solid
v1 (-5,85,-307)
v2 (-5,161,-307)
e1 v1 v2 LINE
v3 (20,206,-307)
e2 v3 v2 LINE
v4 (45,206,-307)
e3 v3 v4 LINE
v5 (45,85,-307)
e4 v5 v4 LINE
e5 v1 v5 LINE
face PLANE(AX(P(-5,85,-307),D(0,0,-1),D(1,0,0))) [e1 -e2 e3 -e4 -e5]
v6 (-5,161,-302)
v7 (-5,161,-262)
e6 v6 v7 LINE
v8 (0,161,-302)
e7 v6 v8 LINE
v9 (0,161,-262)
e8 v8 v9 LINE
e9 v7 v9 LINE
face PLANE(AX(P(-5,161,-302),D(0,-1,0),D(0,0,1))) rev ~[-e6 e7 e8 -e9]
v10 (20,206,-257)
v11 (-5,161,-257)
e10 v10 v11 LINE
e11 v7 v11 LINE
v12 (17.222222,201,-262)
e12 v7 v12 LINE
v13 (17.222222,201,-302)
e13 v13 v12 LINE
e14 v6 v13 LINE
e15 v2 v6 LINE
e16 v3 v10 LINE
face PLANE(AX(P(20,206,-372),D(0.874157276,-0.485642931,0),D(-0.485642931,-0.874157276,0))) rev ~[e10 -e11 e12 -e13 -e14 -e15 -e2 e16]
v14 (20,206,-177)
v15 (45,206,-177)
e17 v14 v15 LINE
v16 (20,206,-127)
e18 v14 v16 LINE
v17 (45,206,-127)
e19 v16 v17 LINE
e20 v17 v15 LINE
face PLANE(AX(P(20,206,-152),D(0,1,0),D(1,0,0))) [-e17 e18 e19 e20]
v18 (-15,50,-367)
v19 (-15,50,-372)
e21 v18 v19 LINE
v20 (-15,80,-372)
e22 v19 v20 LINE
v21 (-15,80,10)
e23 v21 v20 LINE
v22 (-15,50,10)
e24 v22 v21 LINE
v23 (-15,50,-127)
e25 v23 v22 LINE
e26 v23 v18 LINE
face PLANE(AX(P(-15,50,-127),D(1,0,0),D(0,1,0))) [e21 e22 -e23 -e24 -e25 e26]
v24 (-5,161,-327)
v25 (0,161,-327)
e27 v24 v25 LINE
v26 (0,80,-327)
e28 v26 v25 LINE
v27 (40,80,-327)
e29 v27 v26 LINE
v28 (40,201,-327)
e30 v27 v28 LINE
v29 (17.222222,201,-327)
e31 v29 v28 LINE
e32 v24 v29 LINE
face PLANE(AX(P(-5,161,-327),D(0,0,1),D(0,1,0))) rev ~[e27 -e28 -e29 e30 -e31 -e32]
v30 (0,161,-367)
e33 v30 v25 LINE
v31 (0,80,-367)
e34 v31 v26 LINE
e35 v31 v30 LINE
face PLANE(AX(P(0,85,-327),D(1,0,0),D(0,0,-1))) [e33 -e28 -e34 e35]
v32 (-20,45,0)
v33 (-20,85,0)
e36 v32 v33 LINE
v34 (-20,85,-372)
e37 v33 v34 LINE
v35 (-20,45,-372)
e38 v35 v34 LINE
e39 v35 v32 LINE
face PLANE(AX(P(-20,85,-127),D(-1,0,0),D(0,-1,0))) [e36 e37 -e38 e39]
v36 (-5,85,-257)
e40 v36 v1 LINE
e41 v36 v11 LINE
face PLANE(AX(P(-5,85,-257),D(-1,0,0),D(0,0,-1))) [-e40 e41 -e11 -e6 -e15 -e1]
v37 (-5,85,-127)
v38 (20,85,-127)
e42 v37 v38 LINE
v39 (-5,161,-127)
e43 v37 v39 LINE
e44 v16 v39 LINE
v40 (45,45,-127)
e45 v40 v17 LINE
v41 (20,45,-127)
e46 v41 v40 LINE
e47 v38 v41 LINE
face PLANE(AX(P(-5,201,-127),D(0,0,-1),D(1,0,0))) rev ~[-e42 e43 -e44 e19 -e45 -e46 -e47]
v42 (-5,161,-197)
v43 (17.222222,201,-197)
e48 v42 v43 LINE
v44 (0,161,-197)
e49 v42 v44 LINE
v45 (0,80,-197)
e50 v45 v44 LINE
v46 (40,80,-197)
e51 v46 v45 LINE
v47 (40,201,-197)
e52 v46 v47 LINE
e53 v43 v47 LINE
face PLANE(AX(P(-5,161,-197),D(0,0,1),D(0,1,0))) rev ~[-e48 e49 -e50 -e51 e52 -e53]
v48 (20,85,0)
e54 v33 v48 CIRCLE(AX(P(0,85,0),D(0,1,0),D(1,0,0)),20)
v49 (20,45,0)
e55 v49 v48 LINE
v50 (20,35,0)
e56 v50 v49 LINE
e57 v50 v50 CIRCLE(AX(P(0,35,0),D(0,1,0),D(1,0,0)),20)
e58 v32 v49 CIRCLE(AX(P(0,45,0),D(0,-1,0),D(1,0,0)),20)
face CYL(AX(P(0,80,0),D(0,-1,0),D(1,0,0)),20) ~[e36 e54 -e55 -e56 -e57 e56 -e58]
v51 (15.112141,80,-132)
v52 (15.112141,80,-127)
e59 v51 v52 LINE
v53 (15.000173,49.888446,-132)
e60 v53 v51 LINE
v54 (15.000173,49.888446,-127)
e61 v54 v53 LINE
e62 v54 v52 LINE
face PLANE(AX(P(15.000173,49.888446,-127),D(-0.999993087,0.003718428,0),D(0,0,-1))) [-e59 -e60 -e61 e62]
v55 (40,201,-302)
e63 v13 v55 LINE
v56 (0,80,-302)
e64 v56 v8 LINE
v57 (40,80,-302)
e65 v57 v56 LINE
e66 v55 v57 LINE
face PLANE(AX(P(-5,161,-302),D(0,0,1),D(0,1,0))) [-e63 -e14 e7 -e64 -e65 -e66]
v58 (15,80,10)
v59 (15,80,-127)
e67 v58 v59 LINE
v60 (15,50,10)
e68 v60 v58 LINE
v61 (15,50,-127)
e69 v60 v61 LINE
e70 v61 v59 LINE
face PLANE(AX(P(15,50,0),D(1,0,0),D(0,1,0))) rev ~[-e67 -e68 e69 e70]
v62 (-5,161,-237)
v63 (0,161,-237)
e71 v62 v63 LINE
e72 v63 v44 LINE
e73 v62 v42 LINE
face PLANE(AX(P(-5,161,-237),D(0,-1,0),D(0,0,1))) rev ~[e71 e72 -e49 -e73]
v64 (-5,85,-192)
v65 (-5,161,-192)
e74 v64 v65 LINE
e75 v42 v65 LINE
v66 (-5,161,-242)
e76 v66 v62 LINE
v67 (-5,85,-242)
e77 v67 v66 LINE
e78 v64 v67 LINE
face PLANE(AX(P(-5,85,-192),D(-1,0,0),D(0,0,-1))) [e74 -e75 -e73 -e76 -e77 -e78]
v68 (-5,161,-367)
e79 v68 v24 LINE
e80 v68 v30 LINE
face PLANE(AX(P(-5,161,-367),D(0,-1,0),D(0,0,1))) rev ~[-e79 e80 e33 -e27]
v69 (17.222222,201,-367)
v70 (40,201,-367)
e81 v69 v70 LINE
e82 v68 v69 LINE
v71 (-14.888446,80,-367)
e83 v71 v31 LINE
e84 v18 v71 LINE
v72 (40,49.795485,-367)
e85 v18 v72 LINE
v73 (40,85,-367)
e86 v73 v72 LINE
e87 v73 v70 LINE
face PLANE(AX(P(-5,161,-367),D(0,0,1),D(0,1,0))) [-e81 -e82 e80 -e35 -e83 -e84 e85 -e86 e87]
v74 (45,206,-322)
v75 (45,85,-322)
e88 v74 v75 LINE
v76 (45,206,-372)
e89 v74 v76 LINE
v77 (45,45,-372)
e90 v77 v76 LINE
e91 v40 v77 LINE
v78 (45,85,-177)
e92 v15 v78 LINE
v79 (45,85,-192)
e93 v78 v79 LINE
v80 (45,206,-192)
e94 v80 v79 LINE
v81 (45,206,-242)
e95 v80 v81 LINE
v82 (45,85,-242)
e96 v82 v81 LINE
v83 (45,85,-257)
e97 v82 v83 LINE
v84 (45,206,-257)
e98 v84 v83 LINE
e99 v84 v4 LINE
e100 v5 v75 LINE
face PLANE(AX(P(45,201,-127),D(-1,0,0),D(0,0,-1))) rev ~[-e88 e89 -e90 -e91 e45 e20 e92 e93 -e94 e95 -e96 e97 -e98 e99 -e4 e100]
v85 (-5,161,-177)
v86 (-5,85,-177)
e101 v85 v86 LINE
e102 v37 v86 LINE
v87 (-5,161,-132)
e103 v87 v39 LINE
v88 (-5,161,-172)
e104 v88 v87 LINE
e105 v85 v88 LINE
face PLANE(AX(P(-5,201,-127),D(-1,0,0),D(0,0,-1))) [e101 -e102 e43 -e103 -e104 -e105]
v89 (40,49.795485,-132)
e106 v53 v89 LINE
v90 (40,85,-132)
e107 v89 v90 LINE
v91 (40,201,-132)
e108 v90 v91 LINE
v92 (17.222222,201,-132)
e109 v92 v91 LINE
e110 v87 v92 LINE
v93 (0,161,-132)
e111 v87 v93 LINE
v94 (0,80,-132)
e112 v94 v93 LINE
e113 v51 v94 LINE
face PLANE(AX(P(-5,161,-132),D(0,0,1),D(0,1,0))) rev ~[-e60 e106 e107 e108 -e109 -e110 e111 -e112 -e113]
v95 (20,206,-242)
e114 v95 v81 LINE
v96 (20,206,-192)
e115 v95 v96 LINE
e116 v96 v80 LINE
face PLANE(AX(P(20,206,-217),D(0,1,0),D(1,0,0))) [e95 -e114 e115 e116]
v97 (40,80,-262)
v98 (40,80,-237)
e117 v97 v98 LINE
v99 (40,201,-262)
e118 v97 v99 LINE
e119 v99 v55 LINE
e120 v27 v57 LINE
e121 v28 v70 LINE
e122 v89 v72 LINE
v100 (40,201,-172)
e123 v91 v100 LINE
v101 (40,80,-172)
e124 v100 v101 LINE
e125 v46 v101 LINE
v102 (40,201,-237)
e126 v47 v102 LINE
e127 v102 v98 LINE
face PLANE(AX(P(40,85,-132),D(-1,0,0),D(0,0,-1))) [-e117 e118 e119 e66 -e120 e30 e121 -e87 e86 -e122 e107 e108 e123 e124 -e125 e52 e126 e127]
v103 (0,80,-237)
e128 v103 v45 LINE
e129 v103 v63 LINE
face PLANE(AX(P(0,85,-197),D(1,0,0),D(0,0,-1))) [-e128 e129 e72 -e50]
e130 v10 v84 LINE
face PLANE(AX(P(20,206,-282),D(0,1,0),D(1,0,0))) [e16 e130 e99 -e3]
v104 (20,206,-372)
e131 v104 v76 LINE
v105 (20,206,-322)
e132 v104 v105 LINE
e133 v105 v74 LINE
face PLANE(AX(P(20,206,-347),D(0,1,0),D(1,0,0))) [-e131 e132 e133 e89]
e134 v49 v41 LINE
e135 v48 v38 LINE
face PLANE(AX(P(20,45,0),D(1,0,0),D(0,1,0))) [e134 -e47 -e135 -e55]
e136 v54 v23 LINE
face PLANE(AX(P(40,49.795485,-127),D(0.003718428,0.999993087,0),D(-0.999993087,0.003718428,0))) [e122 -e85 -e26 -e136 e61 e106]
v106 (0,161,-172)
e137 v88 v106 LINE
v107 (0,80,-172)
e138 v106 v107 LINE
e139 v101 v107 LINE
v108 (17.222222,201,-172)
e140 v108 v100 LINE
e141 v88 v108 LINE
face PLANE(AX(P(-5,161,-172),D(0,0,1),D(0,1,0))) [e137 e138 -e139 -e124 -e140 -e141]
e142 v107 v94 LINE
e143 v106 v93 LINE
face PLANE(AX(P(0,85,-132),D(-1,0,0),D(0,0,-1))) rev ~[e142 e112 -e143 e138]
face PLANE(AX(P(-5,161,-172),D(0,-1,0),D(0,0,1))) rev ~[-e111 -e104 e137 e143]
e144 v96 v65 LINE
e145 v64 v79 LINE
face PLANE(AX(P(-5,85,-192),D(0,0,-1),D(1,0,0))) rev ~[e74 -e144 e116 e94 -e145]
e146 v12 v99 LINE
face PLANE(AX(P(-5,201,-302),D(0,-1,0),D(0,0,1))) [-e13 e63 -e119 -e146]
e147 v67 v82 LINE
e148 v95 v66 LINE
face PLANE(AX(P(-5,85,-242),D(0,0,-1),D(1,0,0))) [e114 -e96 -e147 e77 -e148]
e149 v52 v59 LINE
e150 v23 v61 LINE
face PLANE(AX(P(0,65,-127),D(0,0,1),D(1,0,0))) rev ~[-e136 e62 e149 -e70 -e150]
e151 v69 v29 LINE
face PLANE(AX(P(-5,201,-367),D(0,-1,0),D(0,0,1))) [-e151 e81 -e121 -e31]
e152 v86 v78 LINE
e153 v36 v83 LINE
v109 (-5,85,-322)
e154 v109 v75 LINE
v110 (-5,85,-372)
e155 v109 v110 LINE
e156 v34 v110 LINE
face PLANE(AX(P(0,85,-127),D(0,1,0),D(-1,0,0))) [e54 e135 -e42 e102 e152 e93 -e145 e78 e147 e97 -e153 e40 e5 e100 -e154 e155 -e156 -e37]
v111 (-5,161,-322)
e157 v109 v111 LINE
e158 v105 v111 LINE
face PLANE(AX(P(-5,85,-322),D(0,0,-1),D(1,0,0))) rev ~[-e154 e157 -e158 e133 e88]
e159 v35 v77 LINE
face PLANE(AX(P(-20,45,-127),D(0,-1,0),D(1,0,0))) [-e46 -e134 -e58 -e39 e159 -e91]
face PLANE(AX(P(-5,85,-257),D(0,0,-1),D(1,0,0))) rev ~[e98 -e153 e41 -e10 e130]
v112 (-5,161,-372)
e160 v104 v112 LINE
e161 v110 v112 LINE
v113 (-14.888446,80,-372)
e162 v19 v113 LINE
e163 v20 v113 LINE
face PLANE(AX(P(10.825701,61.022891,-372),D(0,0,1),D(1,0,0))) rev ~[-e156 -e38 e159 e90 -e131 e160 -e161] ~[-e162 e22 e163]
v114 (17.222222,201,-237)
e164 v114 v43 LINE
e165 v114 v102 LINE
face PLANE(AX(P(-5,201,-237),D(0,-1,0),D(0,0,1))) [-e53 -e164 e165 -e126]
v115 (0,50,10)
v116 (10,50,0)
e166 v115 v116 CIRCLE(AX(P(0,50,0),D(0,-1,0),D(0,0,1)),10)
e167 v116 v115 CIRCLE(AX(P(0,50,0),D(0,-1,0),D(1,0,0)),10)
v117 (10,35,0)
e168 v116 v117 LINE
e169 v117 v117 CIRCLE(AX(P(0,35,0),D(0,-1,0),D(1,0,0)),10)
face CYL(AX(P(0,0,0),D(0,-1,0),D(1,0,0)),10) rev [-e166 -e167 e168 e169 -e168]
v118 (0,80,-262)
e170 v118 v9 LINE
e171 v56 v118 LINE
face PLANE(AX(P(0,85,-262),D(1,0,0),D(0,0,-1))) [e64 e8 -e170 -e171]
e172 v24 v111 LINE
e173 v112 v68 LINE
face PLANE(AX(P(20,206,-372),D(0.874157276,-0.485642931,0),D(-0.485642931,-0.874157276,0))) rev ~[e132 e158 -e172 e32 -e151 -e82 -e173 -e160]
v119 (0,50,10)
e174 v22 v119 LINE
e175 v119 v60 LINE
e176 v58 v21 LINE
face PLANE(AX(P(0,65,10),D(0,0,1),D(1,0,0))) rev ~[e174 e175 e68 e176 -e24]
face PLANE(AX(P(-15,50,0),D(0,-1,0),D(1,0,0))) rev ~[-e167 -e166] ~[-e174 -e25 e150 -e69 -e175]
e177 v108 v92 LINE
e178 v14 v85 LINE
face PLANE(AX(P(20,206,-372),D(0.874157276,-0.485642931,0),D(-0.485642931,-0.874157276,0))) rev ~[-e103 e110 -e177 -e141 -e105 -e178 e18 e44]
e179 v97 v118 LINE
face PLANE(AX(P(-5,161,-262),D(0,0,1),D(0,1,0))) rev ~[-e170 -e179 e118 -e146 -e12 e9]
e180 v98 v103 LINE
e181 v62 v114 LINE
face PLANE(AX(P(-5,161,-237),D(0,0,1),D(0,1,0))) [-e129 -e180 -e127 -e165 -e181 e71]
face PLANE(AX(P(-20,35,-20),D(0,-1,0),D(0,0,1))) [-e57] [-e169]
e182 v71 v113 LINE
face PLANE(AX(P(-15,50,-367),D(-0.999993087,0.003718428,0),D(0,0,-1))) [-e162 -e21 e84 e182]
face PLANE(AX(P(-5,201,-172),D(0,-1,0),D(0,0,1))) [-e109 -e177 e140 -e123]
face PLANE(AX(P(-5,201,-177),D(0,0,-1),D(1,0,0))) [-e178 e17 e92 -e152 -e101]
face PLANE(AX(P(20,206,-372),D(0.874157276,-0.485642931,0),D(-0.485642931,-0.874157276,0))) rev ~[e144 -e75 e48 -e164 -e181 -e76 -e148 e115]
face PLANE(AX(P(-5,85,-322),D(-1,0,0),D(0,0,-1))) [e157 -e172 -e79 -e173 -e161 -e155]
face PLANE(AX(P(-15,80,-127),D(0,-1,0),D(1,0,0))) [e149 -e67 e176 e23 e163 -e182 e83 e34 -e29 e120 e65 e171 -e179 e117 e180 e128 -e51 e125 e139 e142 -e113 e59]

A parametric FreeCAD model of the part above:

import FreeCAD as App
import Part
import Sketcher

V = App.Vector
Q = App.Units.Quantity

doc = App.newDocument("Part")
body = doc.addObject("PartDesign::Body", "Body")

# Sketch on XZ plane
sketch1 = body.newObject("Sketcher::SketchObject", "Sketch")
sketch1.AttachmentSupport = (doc.getObject("XZ_Plane"), [""])
sketch1.MapMode = "FlatFace"
sketch1.addGeometry([
    Part.Circle(V(0, 0, 0), V(0, 0, 1), 20),
    Part.Circle(V(0, 0, 0), V(0, 0, 1), 10),
], False)
sketch1.addConstraint([
    Sketcher.Constraint("Coincident", 0, 3, -1, 1),
    Sketcher.Constraint("Coincident", 1, 3, -1, 1),
    Sketcher.Constraint("Diameter", 0, Q("40 mm")),
    Sketcher.Constraint("Diameter", 1, Q("20 mm")),
])
pad1 = body.newObject("PartDesign::Pad", "Pad")
pad1.Profile = sketch1
pad1.Length = 80
pad1.Reversed = True

# Sketch on XZ plane
sketch2 = body.newObject("Sketcher::SketchObject", "Sketch001")
sketch2.AttachmentSupport = (doc.getObject("XZ_Plane"), [""])
sketch2.MapMode = "FlatFace"
sketch2.AttachmentOffset = App.Placement(V(0, 0, -80), App.Rotation())
sketch2.addGeometry(Part.Circle(V(0, 0, 0), V(0, 0, 1), 20), False)
sketch2.addConstraint([
    Sketcher.Constraint("Coincident", 0, 3, -1, 1),
    Sketcher.Constraint("Diameter", 0, Q("40 mm")),
])
pad2 = body.newObject("PartDesign::Pad", "Pad001")
pad2.Profile = sketch2
pad2.Length = 5
pad2.Reversed = True

# Sketch on XY plane
sketch3 = body.newObject("Sketcher::SketchObject", "Sketch002")
sketch3.AttachmentSupport = (doc.getObject("XY_Plane"), [""])
sketch3.MapMode = "FlatFace"
sketch3.addGeometry([
    Part.LineSegment(V(-15, 80, 0), V(-15, 50, 0)),
    Part.LineSegment(V(-15, 50, 0), V(15, 50, 0)),
    Part.LineSegment(V(15, 50, 0), V(15, 80, 0)),
    Part.LineSegment(V(15, 80, 0), V(-15, 80, 0)),
], False)
sketch3.addConstraint([
    Sketcher.Constraint("Coincident", 0, 2, 1, 1),
    Sketcher.Constraint("Coincident", 1, 2, 2, 1),
    Sketcher.Constraint("Coincident", 2, 2, 3, 1),
    Sketcher.Constraint("Coincident", 3, 2, 0, 1),
    Sketcher.Constraint("Vertical", 0),
    Sketcher.Constraint("Horizontal", 1),
    Sketcher.Constraint("Vertical", 2),
    Sketcher.Constraint("Horizontal", 3),
    Sketcher.Constraint("Equal", 3, 0),
    Sketcher.Constraint("DistanceX", 1, 1, 1, 2, Q("30 mm")),
    Sketcher.Constraint("DistanceX", 0, 2, -1, 1, Q("15 mm")),
    Sketcher.Constraint("DistanceY", -1, 1, 0, 2, Q("50 mm")),
])
pocket1 = body.newObject("PartDesign::Pocket", "Pocket")
pocket1.Profile = sketch3
pocket1.Length = 50

# Sketch on XY plane
sketch4 = body.newObject("Sketcher::SketchObject", "Sketch003")
sketch4.AttachmentSupport = (doc.getObject("XY_Plane"), [""])
sketch4.MapMode = "FlatFace"
sketch4.addGeometry([
    Part.LineSegment(V(-20, 85, 0), V(-20, 45, 0)),  # 0
    Part.LineSegment(V(-20, 45, 0), V(20, 45, 0)),  # 1
    Part.LineSegment(V(20, 45, 0), V(20, 85, 0)),  # 2
    Part.LineSegment(V(20, 85, 0), V(-20, 85, 0)),  # 3
    Part.LineSegment(V(15, 50, 0), V(-15, 50, 0)),  # 4
    Part.LineSegment(V(-15, 50, 0), V(-15, 80, 0)),  # 5
    Part.LineSegment(V(-15, 80, 0), V(15, 80, 0)),  # 6
    Part.LineSegment(V(15, 80, 0), V(15, 50, 0)),  # 7
], False)
sketch4.addConstraint([
    Sketcher.Constraint("Coincident", 0, 2, 1, 1),
    Sketcher.Constraint("Coincident", 1, 2, 2, 1),
    Sketcher.Constraint("Coincident", 2, 2, 3, 1),
    Sketcher.Constraint("Coincident", 3, 2, 0, 1),
    Sketcher.Constraint("Coincident", 4, 2, 5, 1),
    Sketcher.Constraint("Coincident", 5, 2, 6, 1),
    Sketcher.Constraint("Coincident", 6, 2, 7, 1),
    Sketcher.Constraint("Coincident", 7, 2, 4, 1),
    Sketcher.Constraint("Vertical", 0),
    Sketcher.Constraint("Horizontal", 1),
    Sketcher.Constraint("Vertical", 2),
    Sketcher.Constraint("Horizontal", 3),
    Sketcher.Constraint("Horizontal", 4),
    Sketcher.Constraint("Vertical", 5),
    Sketcher.Constraint("Horizontal", 6),
    Sketcher.Constraint("Vertical", 7),
    Sketcher.Constraint("Equal", 3, 0),
    Sketcher.Constraint("Equal", 6, 5),
    Sketcher.Constraint("DistanceX", 1, 1, 1, 2, Q("40 mm")),
    Sketcher.Constraint("DistanceX", 4, 2, 4, 1, Q("30 mm")),
    Sketcher.Constraint("DistanceX", 0, 2, -1, 1, Q("20 mm")),
    Sketcher.Constraint("DistanceY", -1, 1, 0, 2, Q("45 mm")),
    Sketcher.Constraint("DistanceX", 4, 2, -1, 1, Q("15 mm")),
    Sketcher.Constraint("DistanceY", -1, 1, 4, 2, Q("50 mm")),
])
pad3 = body.newObject("PartDesign::Pad", "Pad002")
pad3.Profile = sketch4
pad3.Length = 127
pad3.Reversed = True

# Sketch on XY plane
sketch5 = body.newObject("Sketcher::SketchObject", "Sketch004")
sketch5.AttachmentSupport = (doc.getObject("XY_Plane"), [""])
sketch5.MapMode = "FlatFace"
sketch5.addGeometry([
    Part.LineSegment(V(-15, 80, 0), V(-15, 50, 0)),
    Part.LineSegment(V(-15, 50, 0), V(15, 50, 0)),
    Part.LineSegment(V(15, 50, 0), V(15, 80, 0)),
    Part.LineSegment(V(15, 80, 0), V(-15, 80, 0)),
], False)
sketch5.addConstraint([
    Sketcher.Constraint("Coincident", 0, 2, 1, 1),
    Sketcher.Constraint("Coincident", 1, 2, 2, 1),
    Sketcher.Constraint("Coincident", 2, 2, 3, 1),
    Sketcher.Constraint("Coincident", 3, 2, 0, 1),
    Sketcher.Constraint("Vertical", 0),
    Sketcher.Constraint("Horizontal", 1),
    Sketcher.Constraint("Vertical", 2),
    Sketcher.Constraint("Horizontal", 3),
    Sketcher.Constraint("Equal", 3, 0),
    Sketcher.Constraint("DistanceX", 1, 1, 1, 2, Q("30 mm")),
    Sketcher.Constraint("DistanceX", 0, 2, -1, 1, Q("15 mm")),
    Sketcher.Constraint("DistanceY", -1, 1, 0, 2, Q("50 mm")),
])
pocket2 = body.newObject("PartDesign::Pocket", "Pocket001")
pocket2.Profile = sketch5
pocket2.Length = 10
pocket2.Reversed = True

# Sketch on XZ plane
sketch6 = body.newObject("Sketcher::SketchObject", "Sketch005")
sketch6.AttachmentSupport = (doc.getObject("XZ_Plane"), [""])
sketch6.MapMode = "FlatFace"
sketch6.addGeometry(Part.Circle(V(0, 0, 0), V(0, 0, 1), 10), False)
sketch6.addConstraint([
    Sketcher.Constraint("Coincident", 0, 3, -1, 1),
    Sketcher.Constraint("Diameter", 0, Q("20 mm")),
])
pocket3 = body.newObject("PartDesign::Pocket", "Pocket002")
pocket3.Profile = sketch6
pocket3.Length = 50

# Sketch on XY plane
sketch7 = body.newObject("Sketcher::SketchObject", "Sketch006")
sketch7.AttachmentSupport = (doc.getObject("XY_Plane"), [""])
sketch7.MapMode = "FlatFace"
sketch7.AttachmentOffset = App.Placement(V(0, 0, -127), App.Rotation())
sketch7.addGeometry([
    Part.LineSegment(V(0, 85, 0), V(0, 80, 0)),  # 0
    Part.LineSegment(V(0, 80, 0), V(-15, 80, 0)),  # 1
    Part.LineSegment(V(-15, 80, 0), V(-15, 50, 0)),  # 2
    Part.LineSegment(V(-15, 50, 0), V(40, 50, 0)),  # 3
    Part.LineSegment(V(40, 50, 0), V(40, 85, 0)),  # 4
    Part.LineSegment(V(40, 85, 0), V(45, 85, 0)),  # 5
    Part.LineSegment(V(45, 85, 0), V(45, 45, 0)),  # 6
    Part.LineSegment(V(45, 45, 0), V(-20, 45, 0)),  # 7
    Part.LineSegment(V(-20, 45, 0), V(-20, 85, 0)),  # 8
    Part.LineSegment(V(-20, 85, 0), V(0, 85, 0)),  # 9
], False)
sketch7.addConstraint([
    Sketcher.Constraint("Coincident", 0, 2, 1, 1),
    Sketcher.Constraint("Coincident", 1, 2, 2, 1),
    Sketcher.Constraint("Coincident", 2, 2, 3, 1),
    Sketcher.Constraint("Coincident", 3, 2, 4, 1),
    Sketcher.Constraint("Coincident", 4, 2, 5, 1),
    Sketcher.Constraint("Coincident", 5, 2, 6, 1),
    Sketcher.Constraint("Coincident", 6, 2, 7, 1),
    Sketcher.Constraint("Coincident", 7, 2, 8, 1),
    Sketcher.Constraint("Coincident", 8, 2, 9, 1),
    Sketcher.Constraint("Coincident", 9, 2, 0, 1),
    Sketcher.Constraint("Vertical", 0),
    Sketcher.Constraint("Horizontal", 1),
    Sketcher.Constraint("Vertical", 2),
    Sketcher.Constraint("Vertical", 4),
    Sketcher.Constraint("Horizontal", 5),
    Sketcher.Constraint("Vertical", 6),
    Sketcher.Constraint("Horizontal", 7),
    Sketcher.Constraint("Vertical", 8),
    Sketcher.Constraint("Horizontal", 9),
    Sketcher.Constraint("PointOnObject", 0, 2, -2),
    Sketcher.Constraint("Horizontal", 5, 2, 8, 2),
    Sketcher.Constraint("Equal", 5, 0),
    Sketcher.Constraint("DistanceX", 1, 2, 1, 1, Q("15 mm")),
    Sketcher.Constraint("DistanceX", 5, 1, 5, 2, Q("5 mm")),
    Sketcher.Constraint("DistanceX", 7, 2, 7, 1, Q("65 mm")),
    Sketcher.Constraint("DistanceX", 9, 1, 9, 2, Q("20 mm")),
    Sketcher.Constraint("DistanceY", 2, 2, 2, 1, Q("30 mm")),
    Sketcher.Constraint("DistanceY", 6, 2, 6, 1, Q("40 mm")),
    Sketcher.Constraint("DistanceY", -1, 1, 0, 2, Q("80 mm")),
    Sketcher.Constraint("DistanceY", 4, 1, 4, 2, Q("35.204515 mm")),
])
pad4 = body.newObject("PartDesign::Pad", "Pad003")
pad4.Profile = sketch7
pad4.Length = 245
pad4.Reversed = True

# Sketch on an angled plane
sketch8 = body.newObject("Sketcher::SketchObject", "Sketch007")
sketch8.Placement = App.Placement(V(0.185713, 49.943533, 0), App.Rotation(V(0.999993087, -0.003718428, 0), V(0, 0, -1.000000001), V(0.003718428, 0.999993087, 0), "ZXY"))
sketch8.addGeometry([
    Part.LineSegment(V(15, 132, 0), V(15, 127, 0)),  # 0
    Part.LineSegment(V(15, 127, 0), V(40, 127, 0)),  # 1
    Part.LineSegment(V(40, 127, 0), V(40, 132, 0)),  # 2
    Part.LineSegment(V(40, 132, 0), V(15, 132, 0)),  # 3
    Part.LineSegment(V(-15, 372, 0), V(-15, 367, 0)),  # 4
    Part.LineSegment(V(-15, 367, 0), V(40, 367, 0)),  # 5
    Part.LineSegment(V(40, 367, 0), V(40, 372, 0)),  # 6
    Part.LineSegment(V(40, 372, 0), V(-15, 372, 0)),  # 7
], False)
sketch8.addConstraint([
    Sketcher.Constraint("Coincident", 0, 2, 1, 1),
    Sketcher.Constraint("Coincident", 1, 2, 2, 1),
    Sketcher.Constraint("Coincident", 2, 2, 3, 1),
    Sketcher.Constraint("Coincident", 3, 2, 0, 1),
    Sketcher.Constraint("Coincident", 4, 2, 5, 1),
    Sketcher.Constraint("Coincident", 5, 2, 6, 1),
    Sketcher.Constraint("Coincident", 6, 2, 7, 1),
    Sketcher.Constraint("Coincident", 7, 2, 4, 1),
    Sketcher.Constraint("Vertical", 0),
    Sketcher.Constraint("Horizontal", 1),
    Sketcher.Constraint("Vertical", 2),
    Sketcher.Constraint("Horizontal", 3),
    Sketcher.Constraint("Vertical", 4),
    Sketcher.Constraint("Horizontal", 5),
    Sketcher.Constraint("Vertical", 6),
    Sketcher.Constraint("Horizontal", 7),
    Sketcher.Constraint("Vertical", 2, 2, 5, 2),
    Sketcher.Constraint("Equal", 2, 4),
    Sketcher.Constraint("DistanceX", 1, 1, 1, 2, Q("25 mm")),
    Sketcher.Constraint("DistanceY", 0, 2, 0, 1, Q("5 mm")),
    Sketcher.Constraint("DistanceY", -1, 1, 0, 2, Q("127 mm")),
    Sketcher.Constraint("DistanceY", -1, 1, 4, 2, Q("367.000001 mm")),
    Sketcher.Constraint("DistanceX", 5, 1, 5, 2, Q("55.00038 mm")),
    Sketcher.Constraint("DistanceX", -1, 1, 0, 2, Q("14.814563 mm")),
])
pad5 = body.newObject("PartDesign::Pad", "Pad004")
pad5.Profile = sketch8
pad5.Length = 35

# Sketch on XY plane
sketch9 = body.newObject("Sketcher::SketchObject", "Sketch008")
sketch9.AttachmentSupport = (doc.getObject("XY_Plane"), [""])
sketch9.MapMode = "FlatFace"
sketch9.AttachmentOffset = App.Placement(V(0, 0, -372), App.Rotation())
sketch9.addGeometry([
    Part.LineSegment(V(45, 85, 0), V(45, 80, 0)),
    Part.LineSegment(V(45, 80, 0), V(-20, 80, 0)),
    Part.LineSegment(V(-20, 80, 0), V(-20, 85, 0)),
    Part.LineSegment(V(-20, 85, 0), V(45, 85, 0)),
], False)
sketch9.addConstraint([
    Sketcher.Constraint("Coincident", 0, 2, 1, 1),
    Sketcher.Constraint("Coincident", 1, 2, 2, 1),
    Sketcher.Constraint("Coincident", 2, 2, 3, 1),
    Sketcher.Constraint("Coincident", 3, 2, 0, 1),
    Sketcher.Constraint("Vertical", 0),
    Sketcher.Constraint("Horizontal", 1),
    Sketcher.Constraint("Vertical", 2),
    Sketcher.Constraint("Horizontal", 3),
    Sketcher.Constraint("DistanceX", 1, 2, 1, 1, Q("65 mm")),
    Sketcher.Constraint("DistanceY", 0, 2, 0, 1, Q("5 mm")),
    Sketcher.Constraint("DistanceX", -1, 1, 0, 2, Q("45 mm")),
    Sketcher.Constraint("DistanceY", -1, 1, 0, 2, Q("80 mm")),
])
pad6 = body.newObject("PartDesign::Pad", "Pad005")
pad6.Profile = sketch9
pad6.Length = 245

# Sketch on XZ plane
sketch10 = body.newObject("Sketcher::SketchObject", "Sketch009")
sketch10.AttachmentSupport = (doc.getObject("XZ_Plane"), [""])
sketch10.MapMode = "FlatFace"
sketch10.AttachmentOffset = App.Placement(V(0, 0, -85), App.Rotation())
sketch10.addGeometry([
    Part.LineSegment(V(0, -172, 0), V(0, -132, 0)),  # 0
    Part.LineSegment(V(0, -132, 0), V(40, -132, 0)),  # 1
    Part.LineSegment(V(40, -132, 0), V(40, -172, 0)),  # 2
    Part.LineSegment(V(40, -172, 0), V(0, -172, 0)),  # 3
    Part.LineSegment(V(0, -237, 0), V(0, -197, 0)),  # 4
    Part.LineSegment(V(0, -197, 0), V(40, -197, 0)),  # 5
    Part.LineSegment(V(40, -197, 0), V(40, -237, 0)),  # 6
    Part.LineSegment(V(40, -237, 0), V(0, -237, 0)),  # 7
    Part.LineSegment(V(0, -302, 0), V(0, -262, 0)),  # 8
    Part.LineSegment(V(0, -262, 0), V(40, -262, 0)),  # 9
    Part.LineSegment(V(40, -262, 0), V(40, -302, 0)),  # 10
    Part.LineSegment(V(40, -302, 0), V(0, -302, 0)),  # 11
    Part.LineSegment(V(0, -367, 0), V(0, -327, 0)),  # 12
    Part.LineSegment(V(0, -327, 0), V(40, -327, 0)),  # 13
    Part.LineSegment(V(40, -327, 0), V(40, -367, 0)),  # 14
    Part.LineSegment(V(40, -367, 0), V(0, -367, 0)),  # 15
], False)
sketch10.addConstraint([
    Sketcher.Constraint("Coincident", 0, 2, 1, 1),
    Sketcher.Constraint("Coincident", 1, 2, 2, 1),
    Sketcher.Constraint("Coincident", 2, 2, 3, 1),
    Sketcher.Constraint("Coincident", 3, 2, 0, 1),
    Sketcher.Constraint("Coincident", 4, 2, 5, 1),
    Sketcher.Constraint("Coincident", 5, 2, 6, 1),
    Sketcher.Constraint("Coincident", 6, 2, 7, 1),
    Sketcher.Constraint("Coincident", 7, 2, 4, 1),
    Sketcher.Constraint("Coincident", 8, 2, 9, 1),
    Sketcher.Constraint("Coincident", 9, 2, 10, 1),
    Sketcher.Constraint("Coincident", 10, 2, 11, 1),
    Sketcher.Constraint("Coincident", 11, 2, 8, 1),
    Sketcher.Constraint("Coincident", 12, 2, 13, 1),
    Sketcher.Constraint("Coincident", 13, 2, 14, 1),
    Sketcher.Constraint("Coincident", 14, 2, 15, 1),
    Sketcher.Constraint("Coincident", 15, 2, 12, 1),
    Sketcher.Constraint("Vertical", 0),
    Sketcher.Constraint("Horizontal", 1),
    Sketcher.Constraint("Vertical", 2),
    Sketcher.Constraint("Horizontal", 3),
    Sketcher.Constraint("Vertical", 4),
    Sketcher.Constraint("Horizontal", 5),
    Sketcher.Constraint("Vertical", 6),
    Sketcher.Constraint("Horizontal", 7),
    Sketcher.Constraint("Vertical", 8),
    Sketcher.Constraint("Horizontal", 9),
    Sketcher.Constraint("Vertical", 10),
    Sketcher.Constraint("Horizontal", 11),
    Sketcher.Constraint("Vertical", 12),
    Sketcher.Constraint("Horizontal", 13),
    Sketcher.Constraint("Vertical", 14),
    Sketcher.Constraint("Horizontal", 15),
    Sketcher.Constraint("PointOnObject", 0, 2, -2),
    Sketcher.Constraint("PointOnObject", 4, 2, -2),
    Sketcher.Constraint("PointOnObject", 8, 2, -2),
    Sketcher.Constraint("PointOnObject", 12, 2, -2),
    Sketcher.Constraint("Vertical", 2, 2, 5, 2),
    Sketcher.Constraint("Vertical", 6, 2, 9, 2),
    Sketcher.Constraint("Vertical", 10, 2, 13, 2),
    Sketcher.Constraint("Equal", 15, 0),
    Sketcher.Constraint("Equal", 2, 4),
    Sketcher.Constraint("Equal", 6, 8),
    Sketcher.Constraint("Equal", 10, 12),
    Sketcher.Constraint("DistanceX", 1, 1, 1, 2, Q("40 mm")),
    Sketcher.Constraint("DistanceY", 0, 2, -1, 1, Q("132 mm")),
    Sketcher.Constraint("DistanceY", 4, 2, -1, 1, Q("197 mm")),
    Sketcher.Constraint("DistanceY", 8, 2, -1, 1, Q("262 mm")),
    Sketcher.Constraint("DistanceY", 12, 2, -1, 1, Q("327 mm")),
])
pocket4 = body.newObject("PartDesign::Pocket", "Pocket003")
pocket4.Profile = sketch10
pocket4.Length = 10
pocket4.Reversed = True

# Sketch on XZ plane
sketch11 = body.newObject("Sketcher::SketchObject", "Sketch010")
sketch11.AttachmentSupport = (doc.getObject("XZ_Plane"), [""])
sketch11.MapMode = "FlatFace"
sketch11.AttachmentOffset = App.Placement(V(0, 0, -85), App.Rotation())
sketch11.addGeometry([
    Part.LineSegment(V(-5, -177, 0), V(-5, -127, 0)),  # 0
    Part.LineSegment(V(-5, -127, 0), V(45, -127, 0)),  # 1
    Part.LineSegment(V(45, -127, 0), V(45, -177, 0)),  # 2
    Part.LineSegment(V(45, -177, 0), V(-5, -177, 0)),  # 3
    Part.LineSegment(V(40, -132, 0), V(0, -132, 0)),  # 4
    Part.LineSegment(V(0, -132, 0), V(0, -172, 0)),  # 5
    Part.LineSegment(V(0, -172, 0), V(40, -172, 0)),  # 6
    Part.LineSegment(V(40, -172, 0), V(40, -132, 0)),  # 7
    Part.LineSegment(V(-5, -242, 0), V(-5, -192, 0)),  # 8
    Part.LineSegment(V(-5, -192, 0), V(45, -192, 0)),  # 9
    Part.LineSegment(V(45, -192, 0), V(45, -242, 0)),  # 10
    Part.LineSegment(V(45, -242, 0), V(-5, -242, 0)),  # 11
    Part.LineSegment(V(40, -197, 0), V(0, -197, 0)),  # 12
    Part.LineSegment(V(0, -197, 0), V(0, -237, 0)),  # 13
    Part.LineSegment(V(0, -237, 0), V(40, -237, 0)),  # 14
    Part.LineSegment(V(40, -237, 0), V(40, -197, 0)),  # 15
    Part.LineSegment(V(-5, -307, 0), V(-5, -257, 0)),  # 16
    Part.LineSegment(V(-5, -257, 0), V(45, -257, 0)),  # 17
    Part.LineSegment(V(45, -257, 0), V(45, -307, 0)),  # 18
    Part.LineSegment(V(45, -307, 0), V(-5, -307, 0)),  # 19
    Part.LineSegment(V(40, -262, 0), V(0, -262, 0)),  # 20
    Part.LineSegment(V(0, -262, 0), V(0, -302, 0)),  # 21
    Part.LineSegment(V(0, -302, 0), V(40, -302, 0)),  # 22
    Part.LineSegment(V(40, -302, 0), V(40, -262, 0)),  # 23
    Part.LineSegment(V(-5, -372, 0), V(-5, -322, 0)),  # 24
    Part.LineSegment(V(-5, -322, 0), V(45, -322, 0)),  # 25
    Part.LineSegment(V(45, -322, 0), V(45, -372, 0)),  # 26
    Part.LineSegment(V(45, -372, 0), V(-5, -372, 0)),  # 27
    Part.LineSegment(V(40, -327, 0), V(0, -327, 0)),  # 28
    Part.LineSegment(V(0, -327, 0), V(0, -367, 0)),  # 29
    Part.LineSegment(V(0, -367, 0), V(40, -367, 0)),  # 30
    Part.LineSegment(V(40, -367, 0), V(40, -327, 0)),  # 31
], False)
sketch11.addConstraint([
    Sketcher.Constraint("Coincident", 0, 2, 1, 1),
    Sketcher.Constraint("Coincident", 1, 2, 2, 1),
    Sketcher.Constraint("Coincident", 2, 2, 3, 1),
    Sketcher.Constraint("Coincident", 3, 2, 0, 1),
    Sketcher.Constraint("Coincident", 4, 2, 5, 1),
    Sketcher.Constraint("Coincident", 5, 2, 6, 1),
    Sketcher.Constraint("Coincident", 6, 2, 7, 1),
    Sketcher.Constraint("Coincident", 7, 2, 4, 1),
    Sketcher.Constraint("Coincident", 8, 2, 9, 1),
    Sketcher.Constraint("Coincident", 9, 2, 10, 1),
    Sketcher.Constraint("Coincident", 10, 2, 11, 1),
    Sketcher.Constraint("Coincident", 11, 2, 8, 1),
    Sketcher.Constraint("Coincident", 12, 2, 13, 1),
    Sketcher.Constraint("Coincident", 13, 2, 14, 1),
    Sketcher.Constraint("Coincident", 14, 2, 15, 1),
    Sketcher.Constraint("Coincident", 15, 2, 12, 1),
    Sketcher.Constraint("Coincident", 16, 2, 17, 1),
    Sketcher.Constraint("Coincident", 17, 2, 18, 1),
    Sketcher.Constraint("Coincident", 18, 2, 19, 1),
    Sketcher.Constraint("Coincident", 19, 2, 16, 1),
    Sketcher.Constraint("Coincident", 20, 2, 21, 1),
    Sketcher.Constraint("Coincident", 21, 2, 22, 1),
    Sketcher.Constraint("Coincident", 22, 2, 23, 1),
    Sketcher.Constraint("Coincident", 23, 2, 20, 1),
    Sketcher.Constraint("Coincident", 24, 2, 25, 1),
    Sketcher.Constraint("Coincident", 25, 2, 26, 1),
    Sketcher.Constraint("Coincident", 26, 2, 27, 1),
    Sketcher.Constraint("Coincident", 27, 2, 24, 1),
    Sketcher.Constraint("Coincident", 28, 2, 29, 1),
    Sketcher.Constraint("Coincident", 29, 2, 30, 1),
    Sketcher.Constraint("Coincident", 30, 2, 31, 1),
    Sketcher.Constraint("Coincident", 31, 2, 28, 1),
    Sketcher.Constraint("Vertical", 0),
    Sketcher.Constraint("Horizontal", 1),
    Sketcher.Constraint("Vertical", 2),
    Sketcher.Constraint("Horizontal", 3),
    Sketcher.Constraint("Horizontal", 4),
    Sketcher.Constraint("Vertical", 5),
    Sketcher.Constraint("Horizontal", 6),
    Sketcher.Constraint("Vertical", 7),
    Sketcher.Constraint("Vertical", 8),
    Sketcher.Constraint("Horizontal", 9),
    Sketcher.Constraint("Vertical", 10),
    Sketcher.Constraint("Horizontal", 11),
    Sketcher.Constraint("Horizontal", 12),
    Sketcher.Constraint("Vertical", 13),
    Sketcher.Constraint("Horizontal", 14),
    Sketcher.Constraint("Vertical", 15),
    Sketcher.Constraint("Vertical", 16),
    Sketcher.Constraint("Horizontal", 17),
    Sketcher.Constraint("Vertical", 18),
    Sketcher.Constraint("Horizontal", 19),
    Sketcher.Constraint("Horizontal", 20),
    Sketcher.Constraint("Vertical", 21),
    Sketcher.Constraint("Horizontal", 22),
    Sketcher.Constraint("Vertical", 23),
    Sketcher.Constraint("Vertical", 24),
    Sketcher.Constraint("Horizontal", 25),
    Sketcher.Constraint("Vertical", 26),
    Sketcher.Constraint("Horizontal", 27),
    Sketcher.Constraint("Horizontal", 28),
    Sketcher.Constraint("Vertical", 29),
    Sketcher.Constraint("Horizontal", 30),
    Sketcher.Constraint("Vertical", 31),
    Sketcher.Constraint("PointOnObject", 4, 2, -2),
    Sketcher.Constraint("PointOnObject", 12, 2, -2),
    Sketcher.Constraint("PointOnObject", 20, 2, -2),
    Sketcher.Constraint("PointOnObject", 28, 2, -2),
    Sketcher.Constraint("Vertical", 3, 2, 8, 2),
    Sketcher.Constraint("Vertical", 2, 2, 9, 2),
    Sketcher.Constraint("Vertical", 7, 2, 14, 2),
    Sketcher.Constraint("Vertical", 11, 2, 16, 2),
    Sketcher.Constraint("Vertical", 10, 2, 17, 2),
    Sketcher.Constraint("Vertical", 15, 2, 22, 2),
    Sketcher.Constraint("Vertical", 19, 2, 24, 2),
    Sketcher.Constraint("Vertical", 18, 2, 25, 2),
    Sketcher.Constraint("Vertical", 23, 2, 30, 2),
    Sketcher.Constraint("Equal", 27, 0),
    Sketcher.Constraint("Equal", 30, 5),
    Sketcher.Constraint("Equal", 2, 8),
    Sketcher.Constraint("Equal", 7, 13),
    Sketcher.Constraint("Equal", 10, 16),
    Sketcher.Constraint("Equal", 15, 21),
    Sketcher.Constraint("Equal", 18, 24),
    Sketcher.Constraint("Equal", 23, 29),
    Sketcher.Constraint("DistanceX", 1, 1, 1, 2, Q("50 mm")),
    Sketcher.Constraint("DistanceX", 4, 2, 4, 1, Q("40 mm")),
    Sketcher.Constraint("DistanceX", 0, 2, -1, 1, Q("5 mm")),
    Sketcher.Constraint("DistanceY", 0, 2, -1, 1, Q("127 mm")),
    Sketcher.Constraint("DistanceY", 4, 2, -1, 1, Q("132 mm")),
    Sketcher.Constraint("DistanceY", 8, 2, -1, 1, Q("192 mm")),
    Sketcher.Constraint("DistanceY", 12, 2, -1, 1, Q("197 mm")),
    Sketcher.Constraint("DistanceY", 16, 2, -1, 1, Q("257 mm")),
    Sketcher.Constraint("DistanceY", 20, 2, -1, 1, Q("262 mm")),
    Sketcher.Constraint("DistanceY", 24, 2, -1, 1, Q("322 mm")),
    Sketcher.Constraint("DistanceY", 28, 2, -1, 1, Q("327 mm")),
])
pad7 = body.newObject("PartDesign::Pad", "Pad006")
pad7.Profile = sketch11
pad7.Length = 116
pad7.Reversed = True

# Sketch on XZ plane
sketch12 = body.newObject("Sketcher::SketchObject", "Sketch011")
sketch12.AttachmentSupport = (doc.getObject("XZ_Plane"), [""])
sketch12.MapMode = "FlatFace"
sketch12.AttachmentOffset = App.Placement(V(0, 0, -201), App.Rotation())
sketch12.addGeometry([
    Part.LineSegment(V(-5, -177, 0), V(-5, -127, 0)),  # 0
    Part.LineSegment(V(-5, -127, 0), V(45, -127, 0)),  # 1
    Part.LineSegment(V(45, -127, 0), V(45, -177, 0)),  # 2
    Part.LineSegment(V(45, -177, 0), V(-5, -177, 0)),  # 3
    Part.LineSegment(V(-5, -242, 0), V(-5, -192, 0)),  # 4
    Part.LineSegment(V(-5, -192, 0), V(45, -192, 0)),  # 5
    Part.LineSegment(V(45, -192, 0), V(45, -242, 0)),  # 6
    Part.LineSegment(V(45, -242, 0), V(-5, -242, 0)),  # 7
    Part.LineSegment(V(-5, -307, 0), V(-5, -257, 0)),  # 8
    Part.LineSegment(V(-5, -257, 0), V(45, -257, 0)),  # 9
    Part.LineSegment(V(45, -257, 0), V(45, -307, 0)),  # 10
    Part.LineSegment(V(45, -307, 0), V(-5, -307, 0)),  # 11
    Part.LineSegment(V(-5, -372, 0), V(-5, -322, 0)),  # 12
    Part.LineSegment(V(-5, -322, 0), V(45, -322, 0)),  # 13
    Part.LineSegment(V(45, -322, 0), V(45, -372, 0)),  # 14
    Part.LineSegment(V(45, -372, 0), V(-5, -372, 0)),  # 15
], False)
sketch12.addConstraint([
    Sketcher.Constraint("Coincident", 0, 2, 1, 1),
    Sketcher.Constraint("Coincident", 1, 2, 2, 1),
    Sketcher.Constraint("Coincident", 2, 2, 3, 1),
    Sketcher.Constraint("Coincident", 3, 2, 0, 1),
    Sketcher.Constraint("Coincident", 4, 2, 5, 1),
    Sketcher.Constraint("Coincident", 5, 2, 6, 1),
    Sketcher.Constraint("Coincident", 6, 2, 7, 1),
    Sketcher.Constraint("Coincident", 7, 2, 4, 1),
    Sketcher.Constraint("Coincident", 8, 2, 9, 1),
    Sketcher.Constraint("Coincident", 9, 2, 10, 1),
    Sketcher.Constraint("Coincident", 10, 2, 11, 1),
    Sketcher.Constraint("Coincident", 11, 2, 8, 1),
    Sketcher.Constraint("Coincident", 12, 2, 13, 1),
    Sketcher.Constraint("Coincident", 13, 2, 14, 1),
    Sketcher.Constraint("Coincident", 14, 2, 15, 1),
    Sketcher.Constraint("Coincident", 15, 2, 12, 1),
    Sketcher.Constraint("Vertical", 0),
    Sketcher.Constraint("Horizontal", 1),
    Sketcher.Constraint("Vertical", 2),
    Sketcher.Constraint("Horizontal", 3),
    Sketcher.Constraint("Vertical", 4),
    Sketcher.Constraint("Horizontal", 5),
    Sketcher.Constraint("Vertical", 6),
    Sketcher.Constraint("Horizontal", 7),
    Sketcher.Constraint("Vertical", 8),
    Sketcher.Constraint("Horizontal", 9),
    Sketcher.Constraint("Vertical", 10),
    Sketcher.Constraint("Horizontal", 11),
    Sketcher.Constraint("Vertical", 12),
    Sketcher.Constraint("Horizontal", 13),
    Sketcher.Constraint("Vertical", 14),
    Sketcher.Constraint("Horizontal", 15),
    Sketcher.Constraint("Vertical", 3, 2, 4, 2),
    Sketcher.Constraint("Vertical", 2, 2, 5, 2),
    Sketcher.Constraint("Vertical", 7, 2, 8, 2),
    Sketcher.Constraint("Vertical", 6, 2, 9, 2),
    Sketcher.Constraint("Vertical", 11, 2, 12, 2),
    Sketcher.Constraint("Vertical", 10, 2, 13, 2),
    Sketcher.Constraint("Equal", 15, 0),
    Sketcher.Constraint("Equal", 2, 4),
    Sketcher.Constraint("Equal", 6, 8),
    Sketcher.Constraint("Equal", 10, 12),
    Sketcher.Constraint("DistanceX", 1, 1, 1, 2, Q("50 mm")),
    Sketcher.Constraint("DistanceX", 0, 2, -1, 1, Q("5 mm")),
    Sketcher.Constraint("DistanceY", 0, 2, -1, 1, Q("127 mm")),
    Sketcher.Constraint("DistanceY", 4, 2, -1, 1, Q("192 mm")),
    Sketcher.Constraint("DistanceY", 8, 2, -1, 1, Q("257 mm")),
    Sketcher.Constraint("DistanceY", 12, 2, -1, 1, Q("322 mm")),
])
pad8 = body.newObject("PartDesign::Pad", "Pad007")
pad8.Profile = sketch12
pad8.Length = 5
pad8.Reversed = True

# Sketch on YZ plane
sketch13 = body.newObject("Sketcher::SketchObject", "Sketch012")
sketch13.AttachmentSupport = (doc.getObject("YZ_Plane"), [""])
sketch13.MapMode = "FlatFace"
sketch13.AttachmentOffset = App.Placement(V(0, 0, -5), App.Rotation())
sketch13.addGeometry([
    Part.LineSegment(V(201, -367, 0), V(161, -367, 0)),  # 0
    Part.LineSegment(V(161, -367, 0), V(161, -327, 0)),  # 1
    Part.LineSegment(V(161, -327, 0), V(201, -327, 0)),  # 2
    Part.LineSegment(V(201, -327, 0), V(201, -367, 0)),  # 3
    Part.LineSegment(V(201, -302, 0), V(161, -302, 0)),  # 4
    Part.LineSegment(V(161, -302, 0), V(161, -262, 0)),  # 5
    Part.LineSegment(V(161, -262, 0), V(201, -262, 0)),  # 6
    Part.LineSegment(V(201, -262, 0), V(201, -302, 0)),  # 7
    Part.LineSegment(V(201, -237, 0), V(161, -237, 0)),  # 8
    Part.LineSegment(V(161, -237, 0), V(161, -197, 0)),  # 9
    Part.LineSegment(V(161, -197, 0), V(201, -197, 0)),  # 10
    Part.LineSegment(V(201, -197, 0), V(201, -237, 0)),  # 11
    Part.LineSegment(V(201, -172, 0), V(161, -172, 0)),  # 12
    Part.LineSegment(V(161, -172, 0), V(161, -132, 0)),  # 13
    Part.LineSegment(V(161, -132, 0), V(201, -132, 0)),  # 14
    Part.LineSegment(V(201, -132, 0), V(201, -172, 0)),  # 15
], False)
sketch13.addConstraint([
    Sketcher.Constraint("Coincident", 0, 2, 1, 1),
    Sketcher.Constraint("Coincident", 1, 2, 2, 1),
    Sketcher.Constraint("Coincident", 2, 2, 3, 1),
    Sketcher.Constraint("Coincident", 3, 2, 0, 1),
    Sketcher.Constraint("Coincident", 4, 2, 5, 1),
    Sketcher.Constraint("Coincident", 5, 2, 6, 1),
    Sketcher.Constraint("Coincident", 6, 2, 7, 1),
    Sketcher.Constraint("Coincident", 7, 2, 4, 1),
    Sketcher.Constraint("Coincident", 8, 2, 9, 1),
    Sketcher.Constraint("Coincident", 9, 2, 10, 1),
    Sketcher.Constraint("Coincident", 10, 2, 11, 1),
    Sketcher.Constraint("Coincident", 11, 2, 8, 1),
    Sketcher.Constraint("Coincident", 12, 2, 13, 1),
    Sketcher.Constraint("Coincident", 13, 2, 14, 1),
    Sketcher.Constraint("Coincident", 14, 2, 15, 1),
    Sketcher.Constraint("Coincident", 15, 2, 12, 1),
    Sketcher.Constraint("Horizontal", 0),
    Sketcher.Constraint("Vertical", 1),
    Sketcher.Constraint("Horizontal", 2),
    Sketcher.Constraint("Vertical", 3),
    Sketcher.Constraint("Horizontal", 4),
    Sketcher.Constraint("Vertical", 5),
    Sketcher.Constraint("Horizontal", 6),
    Sketcher.Constraint("Vertical", 7),
    Sketcher.Constraint("Horizontal", 8),
    Sketcher.Constraint("Vertical", 9),
    Sketcher.Constraint("Horizontal", 10),
    Sketcher.Constraint("Vertical", 11),
    Sketcher.Constraint("Horizontal", 12),
    Sketcher.Constraint("Vertical", 13),
    Sketcher.Constraint("Horizontal", 14),
    Sketcher.Constraint("Vertical", 15),
    Sketcher.Constraint("Vertical", 1, 2, 4, 2),
    Sketcher.Constraint("Vertical", 3, 2, 6, 2),
    Sketcher.Constraint("Vertical", 5, 2, 8, 2),
    Sketcher.Constraint("Vertical", 7, 2, 10, 2),
    Sketcher.Constraint("Vertical", 9, 2, 12, 2),
    Sketcher.Constraint("Vertical", 11, 2, 14, 2),
    Sketcher.Constraint("Equal", 14, 1),
    Sketcher.Constraint("Equal", 3, 5),
    Sketcher.Constraint("Equal", 7, 9),
    Sketcher.Constraint("Equal", 11, 13),
    Sketcher.Constraint("DistanceX", 0, 2, 0, 1, Q("40 mm")),
    Sketcher.Constraint("DistanceX", -1, 1, 0, 2, Q("161 mm")),
    Sketcher.Constraint("DistanceY", 0, 2, -1, 1, Q("367 mm")),
    Sketcher.Constraint("DistanceY", 4, 2, -1, 1, Q("302 mm")),
    Sketcher.Constraint("DistanceY", 8, 2, -1, 1, Q("237 mm")),
    Sketcher.Constraint("DistanceY", 12, 2, -1, 1, Q("172 mm")),
])
pocket5 = body.newObject("PartDesign::Pocket", "Pocket004")
pocket5.Profile = sketch13
pocket5.Length = 5
pocket5.Reversed = True

# Sketch on XY plane
sketch14 = body.newObject("Sketcher::SketchObject", "Sketch013")
sketch14.AttachmentSupport = (doc.getObject("XY_Plane"), [""])
sketch14.MapMode = "FlatFace"
sketch14.AttachmentOffset = App.Placement(V(0, 0, -372), App.Rotation())
sketch14.addGeometry([
    Part.LineSegment(V(20, 206, 0), V(-5, 161, 0)),
    Part.LineSegment(V(-5, 161, 0), V(-5, 206, 0)),
    Part.LineSegment(V(-5, 206, 0), V(20, 206, 0)),
], False)
sketch14.addConstraint([
    Sketcher.Constraint("Coincident", 0, 2, 1, 1),
    Sketcher.Constraint("Coincident", 1, 2, 2, 1),
    Sketcher.Constraint("Coincident", 2, 2, 0, 1),
    Sketcher.Constraint("Vertical", 1),
    Sketcher.Constraint("Horizontal", 2),
    Sketcher.Constraint("DistanceX", 2, 1, 2, 2, Q("25 mm")),
    Sketcher.Constraint("DistanceY", 1, 1, 1, 2, Q("45 mm")),
    Sketcher.Constraint("DistanceX", 0, 2, -1, 1, Q("5 mm")),
    Sketcher.Constraint("DistanceY", -1, 1, 0, 2, Q("161 mm")),
])
pocket6 = body.newObject("PartDesign::Pocket", "Pocket005")
pocket6.Profile = sketch14
pocket6.Type = "ThroughAll"
pocket6.Reversed = True

# Sketch on YZ plane
sketch15 = body.newObject("Sketcher::SketchObject", "Sketch014")
sketch15.AttachmentSupport = (doc.getObject("YZ_Plane"), [""])
sketch15.MapMode = "FlatFace"
sketch15.AttachmentOffset = App.Placement(V(0, 0, -20), App.Rotation())
sketch15.addGeometry([
    Part.LineSegment(V(35, -20, 0), V(0, -20, 0)),
    Part.LineSegment(V(0, -20, 0), V(0, 20, 0)),
    Part.LineSegment(V(0, 20, 0), V(35, 20, 0)),
    Part.LineSegment(V(35, 20, 0), V(35, -20, 0)),
], False)
sketch15.addConstraint([
    Sketcher.Constraint("Coincident", 0, 2, 1, 1),
    Sketcher.Constraint("Coincident", 1, 2, 2, 1),
    Sketcher.Constraint("Coincident", 2, 2, 3, 1),
    Sketcher.Constraint("Coincident", 3, 2, 0, 1),
    Sketcher.Constraint("Horizontal", 0),
    Sketcher.Constraint("Vertical", 1),
    Sketcher.Constraint("Horizontal", 2),
    Sketcher.Constraint("Vertical", 3),
    Sketcher.Constraint("Symmetric", 0, 2, 1, 2, -1, 1),
    Sketcher.Constraint("DistanceX", 0, 2, 0, 1, Q("35 mm")),
    Sketcher.Constraint("DistanceY", 1, 1, 1, 2, Q("40 mm")),
])
pocket7 = body.newObject("PartDesign::Pocket", "Pocket006")
pocket7.Profile = sketch15
pocket7.Type = "ThroughAll"
pocket7.Midplane = True

doc.recompute()
